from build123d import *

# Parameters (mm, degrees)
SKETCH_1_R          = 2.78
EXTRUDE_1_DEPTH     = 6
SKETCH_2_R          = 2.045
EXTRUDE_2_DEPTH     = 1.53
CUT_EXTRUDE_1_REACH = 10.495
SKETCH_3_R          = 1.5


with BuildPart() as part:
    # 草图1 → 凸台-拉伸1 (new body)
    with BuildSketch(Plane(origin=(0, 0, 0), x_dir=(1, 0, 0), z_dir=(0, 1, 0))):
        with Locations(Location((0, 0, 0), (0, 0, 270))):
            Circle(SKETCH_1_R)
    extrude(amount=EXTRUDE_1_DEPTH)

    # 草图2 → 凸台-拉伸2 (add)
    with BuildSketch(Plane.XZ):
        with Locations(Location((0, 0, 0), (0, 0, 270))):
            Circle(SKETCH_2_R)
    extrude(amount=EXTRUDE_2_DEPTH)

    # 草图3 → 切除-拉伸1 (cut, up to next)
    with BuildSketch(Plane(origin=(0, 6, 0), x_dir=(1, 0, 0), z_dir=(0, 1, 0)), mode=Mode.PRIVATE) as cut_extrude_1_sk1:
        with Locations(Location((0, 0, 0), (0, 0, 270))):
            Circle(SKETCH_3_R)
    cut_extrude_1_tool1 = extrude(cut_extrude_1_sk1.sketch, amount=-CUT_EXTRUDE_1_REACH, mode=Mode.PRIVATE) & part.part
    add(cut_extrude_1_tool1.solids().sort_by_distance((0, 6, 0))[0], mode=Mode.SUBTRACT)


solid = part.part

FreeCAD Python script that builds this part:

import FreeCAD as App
import Part
import Sketcher
from FreeCAD import Vector
Q = App.Units.Quantity

doc = App.newDocument("Part")
body = doc.addObject("PartDesign::Body", "Body")

sketch1 = body.newObject("Sketcher::SketchObject", "Sketch")
sketch1.AttachmentSupport = (doc.getObject("XZ_Plane"), [""])
sketch1.MapMode = "FlatFace"
sketch1.addGeometry(Part.Circle(Vector(0, 0, 0), Vector(0, 0, 1), 2.8), False)
sketch1.addConstraint([
    Sketcher.Constraint("Coincident", 0, 3, -1, 1),
    Sketcher.Constraint("Diameter", 0, Q("5.56 mm")),
])
pad1 = body.newObject("PartDesign::Pad", "Pad")
pad1.Profile = sketch1
pad1.Length = 6
pad1.Reversed = True

sketch2 = body.newObject("Sketcher::SketchObject", "Sketch001")
sketch2.AttachmentSupport = (doc.getObject("XZ_Plane"), [""])
sketch2.MapMode = "FlatFace"
sketch2.addGeometry(Part.Circle(Vector(0, 0, 0), Vector(0, 0, 1), 2), False)
sketch2.addConstraint([
    Sketcher.Constraint("Coincident", 0, 3, -1, 1),
    Sketcher.Constraint("Diameter", 0, Q("4.09 mm")),
])
pad2 = body.newObject("PartDesign::Pad", "Pad001")
pad2.Profile = sketch2
pad2.Length = 1.53

sketch3 = body.newObject("Sketcher::SketchObject", "Sketch002")
sketch3.AttachmentSupport = (doc.getObject("XZ_Plane"), [""])
sketch3.MapMode = "FlatFace"
sketch3.AttachmentOffset = App.Placement(Vector(0, 0, -6), App.Rotation())
sketch3.addGeometry(Part.Circle(Vector(0, 0, 0), Vector(0, 0, 1), 1.5), False)
sketch3.addConstraint([
    Sketcher.Constraint("Coincident", 0, 3, -1, 1),
    Sketcher.Constraint("Diameter", 0, Q("3 mm")),
])
pocket1 = body.newObject("PartDesign::Pocket", "Pocket")
pocket1.Profile = sketch3
pocket1.Type = "UpToFirst"
pocket1.Reversed = True

doc.recompute()
